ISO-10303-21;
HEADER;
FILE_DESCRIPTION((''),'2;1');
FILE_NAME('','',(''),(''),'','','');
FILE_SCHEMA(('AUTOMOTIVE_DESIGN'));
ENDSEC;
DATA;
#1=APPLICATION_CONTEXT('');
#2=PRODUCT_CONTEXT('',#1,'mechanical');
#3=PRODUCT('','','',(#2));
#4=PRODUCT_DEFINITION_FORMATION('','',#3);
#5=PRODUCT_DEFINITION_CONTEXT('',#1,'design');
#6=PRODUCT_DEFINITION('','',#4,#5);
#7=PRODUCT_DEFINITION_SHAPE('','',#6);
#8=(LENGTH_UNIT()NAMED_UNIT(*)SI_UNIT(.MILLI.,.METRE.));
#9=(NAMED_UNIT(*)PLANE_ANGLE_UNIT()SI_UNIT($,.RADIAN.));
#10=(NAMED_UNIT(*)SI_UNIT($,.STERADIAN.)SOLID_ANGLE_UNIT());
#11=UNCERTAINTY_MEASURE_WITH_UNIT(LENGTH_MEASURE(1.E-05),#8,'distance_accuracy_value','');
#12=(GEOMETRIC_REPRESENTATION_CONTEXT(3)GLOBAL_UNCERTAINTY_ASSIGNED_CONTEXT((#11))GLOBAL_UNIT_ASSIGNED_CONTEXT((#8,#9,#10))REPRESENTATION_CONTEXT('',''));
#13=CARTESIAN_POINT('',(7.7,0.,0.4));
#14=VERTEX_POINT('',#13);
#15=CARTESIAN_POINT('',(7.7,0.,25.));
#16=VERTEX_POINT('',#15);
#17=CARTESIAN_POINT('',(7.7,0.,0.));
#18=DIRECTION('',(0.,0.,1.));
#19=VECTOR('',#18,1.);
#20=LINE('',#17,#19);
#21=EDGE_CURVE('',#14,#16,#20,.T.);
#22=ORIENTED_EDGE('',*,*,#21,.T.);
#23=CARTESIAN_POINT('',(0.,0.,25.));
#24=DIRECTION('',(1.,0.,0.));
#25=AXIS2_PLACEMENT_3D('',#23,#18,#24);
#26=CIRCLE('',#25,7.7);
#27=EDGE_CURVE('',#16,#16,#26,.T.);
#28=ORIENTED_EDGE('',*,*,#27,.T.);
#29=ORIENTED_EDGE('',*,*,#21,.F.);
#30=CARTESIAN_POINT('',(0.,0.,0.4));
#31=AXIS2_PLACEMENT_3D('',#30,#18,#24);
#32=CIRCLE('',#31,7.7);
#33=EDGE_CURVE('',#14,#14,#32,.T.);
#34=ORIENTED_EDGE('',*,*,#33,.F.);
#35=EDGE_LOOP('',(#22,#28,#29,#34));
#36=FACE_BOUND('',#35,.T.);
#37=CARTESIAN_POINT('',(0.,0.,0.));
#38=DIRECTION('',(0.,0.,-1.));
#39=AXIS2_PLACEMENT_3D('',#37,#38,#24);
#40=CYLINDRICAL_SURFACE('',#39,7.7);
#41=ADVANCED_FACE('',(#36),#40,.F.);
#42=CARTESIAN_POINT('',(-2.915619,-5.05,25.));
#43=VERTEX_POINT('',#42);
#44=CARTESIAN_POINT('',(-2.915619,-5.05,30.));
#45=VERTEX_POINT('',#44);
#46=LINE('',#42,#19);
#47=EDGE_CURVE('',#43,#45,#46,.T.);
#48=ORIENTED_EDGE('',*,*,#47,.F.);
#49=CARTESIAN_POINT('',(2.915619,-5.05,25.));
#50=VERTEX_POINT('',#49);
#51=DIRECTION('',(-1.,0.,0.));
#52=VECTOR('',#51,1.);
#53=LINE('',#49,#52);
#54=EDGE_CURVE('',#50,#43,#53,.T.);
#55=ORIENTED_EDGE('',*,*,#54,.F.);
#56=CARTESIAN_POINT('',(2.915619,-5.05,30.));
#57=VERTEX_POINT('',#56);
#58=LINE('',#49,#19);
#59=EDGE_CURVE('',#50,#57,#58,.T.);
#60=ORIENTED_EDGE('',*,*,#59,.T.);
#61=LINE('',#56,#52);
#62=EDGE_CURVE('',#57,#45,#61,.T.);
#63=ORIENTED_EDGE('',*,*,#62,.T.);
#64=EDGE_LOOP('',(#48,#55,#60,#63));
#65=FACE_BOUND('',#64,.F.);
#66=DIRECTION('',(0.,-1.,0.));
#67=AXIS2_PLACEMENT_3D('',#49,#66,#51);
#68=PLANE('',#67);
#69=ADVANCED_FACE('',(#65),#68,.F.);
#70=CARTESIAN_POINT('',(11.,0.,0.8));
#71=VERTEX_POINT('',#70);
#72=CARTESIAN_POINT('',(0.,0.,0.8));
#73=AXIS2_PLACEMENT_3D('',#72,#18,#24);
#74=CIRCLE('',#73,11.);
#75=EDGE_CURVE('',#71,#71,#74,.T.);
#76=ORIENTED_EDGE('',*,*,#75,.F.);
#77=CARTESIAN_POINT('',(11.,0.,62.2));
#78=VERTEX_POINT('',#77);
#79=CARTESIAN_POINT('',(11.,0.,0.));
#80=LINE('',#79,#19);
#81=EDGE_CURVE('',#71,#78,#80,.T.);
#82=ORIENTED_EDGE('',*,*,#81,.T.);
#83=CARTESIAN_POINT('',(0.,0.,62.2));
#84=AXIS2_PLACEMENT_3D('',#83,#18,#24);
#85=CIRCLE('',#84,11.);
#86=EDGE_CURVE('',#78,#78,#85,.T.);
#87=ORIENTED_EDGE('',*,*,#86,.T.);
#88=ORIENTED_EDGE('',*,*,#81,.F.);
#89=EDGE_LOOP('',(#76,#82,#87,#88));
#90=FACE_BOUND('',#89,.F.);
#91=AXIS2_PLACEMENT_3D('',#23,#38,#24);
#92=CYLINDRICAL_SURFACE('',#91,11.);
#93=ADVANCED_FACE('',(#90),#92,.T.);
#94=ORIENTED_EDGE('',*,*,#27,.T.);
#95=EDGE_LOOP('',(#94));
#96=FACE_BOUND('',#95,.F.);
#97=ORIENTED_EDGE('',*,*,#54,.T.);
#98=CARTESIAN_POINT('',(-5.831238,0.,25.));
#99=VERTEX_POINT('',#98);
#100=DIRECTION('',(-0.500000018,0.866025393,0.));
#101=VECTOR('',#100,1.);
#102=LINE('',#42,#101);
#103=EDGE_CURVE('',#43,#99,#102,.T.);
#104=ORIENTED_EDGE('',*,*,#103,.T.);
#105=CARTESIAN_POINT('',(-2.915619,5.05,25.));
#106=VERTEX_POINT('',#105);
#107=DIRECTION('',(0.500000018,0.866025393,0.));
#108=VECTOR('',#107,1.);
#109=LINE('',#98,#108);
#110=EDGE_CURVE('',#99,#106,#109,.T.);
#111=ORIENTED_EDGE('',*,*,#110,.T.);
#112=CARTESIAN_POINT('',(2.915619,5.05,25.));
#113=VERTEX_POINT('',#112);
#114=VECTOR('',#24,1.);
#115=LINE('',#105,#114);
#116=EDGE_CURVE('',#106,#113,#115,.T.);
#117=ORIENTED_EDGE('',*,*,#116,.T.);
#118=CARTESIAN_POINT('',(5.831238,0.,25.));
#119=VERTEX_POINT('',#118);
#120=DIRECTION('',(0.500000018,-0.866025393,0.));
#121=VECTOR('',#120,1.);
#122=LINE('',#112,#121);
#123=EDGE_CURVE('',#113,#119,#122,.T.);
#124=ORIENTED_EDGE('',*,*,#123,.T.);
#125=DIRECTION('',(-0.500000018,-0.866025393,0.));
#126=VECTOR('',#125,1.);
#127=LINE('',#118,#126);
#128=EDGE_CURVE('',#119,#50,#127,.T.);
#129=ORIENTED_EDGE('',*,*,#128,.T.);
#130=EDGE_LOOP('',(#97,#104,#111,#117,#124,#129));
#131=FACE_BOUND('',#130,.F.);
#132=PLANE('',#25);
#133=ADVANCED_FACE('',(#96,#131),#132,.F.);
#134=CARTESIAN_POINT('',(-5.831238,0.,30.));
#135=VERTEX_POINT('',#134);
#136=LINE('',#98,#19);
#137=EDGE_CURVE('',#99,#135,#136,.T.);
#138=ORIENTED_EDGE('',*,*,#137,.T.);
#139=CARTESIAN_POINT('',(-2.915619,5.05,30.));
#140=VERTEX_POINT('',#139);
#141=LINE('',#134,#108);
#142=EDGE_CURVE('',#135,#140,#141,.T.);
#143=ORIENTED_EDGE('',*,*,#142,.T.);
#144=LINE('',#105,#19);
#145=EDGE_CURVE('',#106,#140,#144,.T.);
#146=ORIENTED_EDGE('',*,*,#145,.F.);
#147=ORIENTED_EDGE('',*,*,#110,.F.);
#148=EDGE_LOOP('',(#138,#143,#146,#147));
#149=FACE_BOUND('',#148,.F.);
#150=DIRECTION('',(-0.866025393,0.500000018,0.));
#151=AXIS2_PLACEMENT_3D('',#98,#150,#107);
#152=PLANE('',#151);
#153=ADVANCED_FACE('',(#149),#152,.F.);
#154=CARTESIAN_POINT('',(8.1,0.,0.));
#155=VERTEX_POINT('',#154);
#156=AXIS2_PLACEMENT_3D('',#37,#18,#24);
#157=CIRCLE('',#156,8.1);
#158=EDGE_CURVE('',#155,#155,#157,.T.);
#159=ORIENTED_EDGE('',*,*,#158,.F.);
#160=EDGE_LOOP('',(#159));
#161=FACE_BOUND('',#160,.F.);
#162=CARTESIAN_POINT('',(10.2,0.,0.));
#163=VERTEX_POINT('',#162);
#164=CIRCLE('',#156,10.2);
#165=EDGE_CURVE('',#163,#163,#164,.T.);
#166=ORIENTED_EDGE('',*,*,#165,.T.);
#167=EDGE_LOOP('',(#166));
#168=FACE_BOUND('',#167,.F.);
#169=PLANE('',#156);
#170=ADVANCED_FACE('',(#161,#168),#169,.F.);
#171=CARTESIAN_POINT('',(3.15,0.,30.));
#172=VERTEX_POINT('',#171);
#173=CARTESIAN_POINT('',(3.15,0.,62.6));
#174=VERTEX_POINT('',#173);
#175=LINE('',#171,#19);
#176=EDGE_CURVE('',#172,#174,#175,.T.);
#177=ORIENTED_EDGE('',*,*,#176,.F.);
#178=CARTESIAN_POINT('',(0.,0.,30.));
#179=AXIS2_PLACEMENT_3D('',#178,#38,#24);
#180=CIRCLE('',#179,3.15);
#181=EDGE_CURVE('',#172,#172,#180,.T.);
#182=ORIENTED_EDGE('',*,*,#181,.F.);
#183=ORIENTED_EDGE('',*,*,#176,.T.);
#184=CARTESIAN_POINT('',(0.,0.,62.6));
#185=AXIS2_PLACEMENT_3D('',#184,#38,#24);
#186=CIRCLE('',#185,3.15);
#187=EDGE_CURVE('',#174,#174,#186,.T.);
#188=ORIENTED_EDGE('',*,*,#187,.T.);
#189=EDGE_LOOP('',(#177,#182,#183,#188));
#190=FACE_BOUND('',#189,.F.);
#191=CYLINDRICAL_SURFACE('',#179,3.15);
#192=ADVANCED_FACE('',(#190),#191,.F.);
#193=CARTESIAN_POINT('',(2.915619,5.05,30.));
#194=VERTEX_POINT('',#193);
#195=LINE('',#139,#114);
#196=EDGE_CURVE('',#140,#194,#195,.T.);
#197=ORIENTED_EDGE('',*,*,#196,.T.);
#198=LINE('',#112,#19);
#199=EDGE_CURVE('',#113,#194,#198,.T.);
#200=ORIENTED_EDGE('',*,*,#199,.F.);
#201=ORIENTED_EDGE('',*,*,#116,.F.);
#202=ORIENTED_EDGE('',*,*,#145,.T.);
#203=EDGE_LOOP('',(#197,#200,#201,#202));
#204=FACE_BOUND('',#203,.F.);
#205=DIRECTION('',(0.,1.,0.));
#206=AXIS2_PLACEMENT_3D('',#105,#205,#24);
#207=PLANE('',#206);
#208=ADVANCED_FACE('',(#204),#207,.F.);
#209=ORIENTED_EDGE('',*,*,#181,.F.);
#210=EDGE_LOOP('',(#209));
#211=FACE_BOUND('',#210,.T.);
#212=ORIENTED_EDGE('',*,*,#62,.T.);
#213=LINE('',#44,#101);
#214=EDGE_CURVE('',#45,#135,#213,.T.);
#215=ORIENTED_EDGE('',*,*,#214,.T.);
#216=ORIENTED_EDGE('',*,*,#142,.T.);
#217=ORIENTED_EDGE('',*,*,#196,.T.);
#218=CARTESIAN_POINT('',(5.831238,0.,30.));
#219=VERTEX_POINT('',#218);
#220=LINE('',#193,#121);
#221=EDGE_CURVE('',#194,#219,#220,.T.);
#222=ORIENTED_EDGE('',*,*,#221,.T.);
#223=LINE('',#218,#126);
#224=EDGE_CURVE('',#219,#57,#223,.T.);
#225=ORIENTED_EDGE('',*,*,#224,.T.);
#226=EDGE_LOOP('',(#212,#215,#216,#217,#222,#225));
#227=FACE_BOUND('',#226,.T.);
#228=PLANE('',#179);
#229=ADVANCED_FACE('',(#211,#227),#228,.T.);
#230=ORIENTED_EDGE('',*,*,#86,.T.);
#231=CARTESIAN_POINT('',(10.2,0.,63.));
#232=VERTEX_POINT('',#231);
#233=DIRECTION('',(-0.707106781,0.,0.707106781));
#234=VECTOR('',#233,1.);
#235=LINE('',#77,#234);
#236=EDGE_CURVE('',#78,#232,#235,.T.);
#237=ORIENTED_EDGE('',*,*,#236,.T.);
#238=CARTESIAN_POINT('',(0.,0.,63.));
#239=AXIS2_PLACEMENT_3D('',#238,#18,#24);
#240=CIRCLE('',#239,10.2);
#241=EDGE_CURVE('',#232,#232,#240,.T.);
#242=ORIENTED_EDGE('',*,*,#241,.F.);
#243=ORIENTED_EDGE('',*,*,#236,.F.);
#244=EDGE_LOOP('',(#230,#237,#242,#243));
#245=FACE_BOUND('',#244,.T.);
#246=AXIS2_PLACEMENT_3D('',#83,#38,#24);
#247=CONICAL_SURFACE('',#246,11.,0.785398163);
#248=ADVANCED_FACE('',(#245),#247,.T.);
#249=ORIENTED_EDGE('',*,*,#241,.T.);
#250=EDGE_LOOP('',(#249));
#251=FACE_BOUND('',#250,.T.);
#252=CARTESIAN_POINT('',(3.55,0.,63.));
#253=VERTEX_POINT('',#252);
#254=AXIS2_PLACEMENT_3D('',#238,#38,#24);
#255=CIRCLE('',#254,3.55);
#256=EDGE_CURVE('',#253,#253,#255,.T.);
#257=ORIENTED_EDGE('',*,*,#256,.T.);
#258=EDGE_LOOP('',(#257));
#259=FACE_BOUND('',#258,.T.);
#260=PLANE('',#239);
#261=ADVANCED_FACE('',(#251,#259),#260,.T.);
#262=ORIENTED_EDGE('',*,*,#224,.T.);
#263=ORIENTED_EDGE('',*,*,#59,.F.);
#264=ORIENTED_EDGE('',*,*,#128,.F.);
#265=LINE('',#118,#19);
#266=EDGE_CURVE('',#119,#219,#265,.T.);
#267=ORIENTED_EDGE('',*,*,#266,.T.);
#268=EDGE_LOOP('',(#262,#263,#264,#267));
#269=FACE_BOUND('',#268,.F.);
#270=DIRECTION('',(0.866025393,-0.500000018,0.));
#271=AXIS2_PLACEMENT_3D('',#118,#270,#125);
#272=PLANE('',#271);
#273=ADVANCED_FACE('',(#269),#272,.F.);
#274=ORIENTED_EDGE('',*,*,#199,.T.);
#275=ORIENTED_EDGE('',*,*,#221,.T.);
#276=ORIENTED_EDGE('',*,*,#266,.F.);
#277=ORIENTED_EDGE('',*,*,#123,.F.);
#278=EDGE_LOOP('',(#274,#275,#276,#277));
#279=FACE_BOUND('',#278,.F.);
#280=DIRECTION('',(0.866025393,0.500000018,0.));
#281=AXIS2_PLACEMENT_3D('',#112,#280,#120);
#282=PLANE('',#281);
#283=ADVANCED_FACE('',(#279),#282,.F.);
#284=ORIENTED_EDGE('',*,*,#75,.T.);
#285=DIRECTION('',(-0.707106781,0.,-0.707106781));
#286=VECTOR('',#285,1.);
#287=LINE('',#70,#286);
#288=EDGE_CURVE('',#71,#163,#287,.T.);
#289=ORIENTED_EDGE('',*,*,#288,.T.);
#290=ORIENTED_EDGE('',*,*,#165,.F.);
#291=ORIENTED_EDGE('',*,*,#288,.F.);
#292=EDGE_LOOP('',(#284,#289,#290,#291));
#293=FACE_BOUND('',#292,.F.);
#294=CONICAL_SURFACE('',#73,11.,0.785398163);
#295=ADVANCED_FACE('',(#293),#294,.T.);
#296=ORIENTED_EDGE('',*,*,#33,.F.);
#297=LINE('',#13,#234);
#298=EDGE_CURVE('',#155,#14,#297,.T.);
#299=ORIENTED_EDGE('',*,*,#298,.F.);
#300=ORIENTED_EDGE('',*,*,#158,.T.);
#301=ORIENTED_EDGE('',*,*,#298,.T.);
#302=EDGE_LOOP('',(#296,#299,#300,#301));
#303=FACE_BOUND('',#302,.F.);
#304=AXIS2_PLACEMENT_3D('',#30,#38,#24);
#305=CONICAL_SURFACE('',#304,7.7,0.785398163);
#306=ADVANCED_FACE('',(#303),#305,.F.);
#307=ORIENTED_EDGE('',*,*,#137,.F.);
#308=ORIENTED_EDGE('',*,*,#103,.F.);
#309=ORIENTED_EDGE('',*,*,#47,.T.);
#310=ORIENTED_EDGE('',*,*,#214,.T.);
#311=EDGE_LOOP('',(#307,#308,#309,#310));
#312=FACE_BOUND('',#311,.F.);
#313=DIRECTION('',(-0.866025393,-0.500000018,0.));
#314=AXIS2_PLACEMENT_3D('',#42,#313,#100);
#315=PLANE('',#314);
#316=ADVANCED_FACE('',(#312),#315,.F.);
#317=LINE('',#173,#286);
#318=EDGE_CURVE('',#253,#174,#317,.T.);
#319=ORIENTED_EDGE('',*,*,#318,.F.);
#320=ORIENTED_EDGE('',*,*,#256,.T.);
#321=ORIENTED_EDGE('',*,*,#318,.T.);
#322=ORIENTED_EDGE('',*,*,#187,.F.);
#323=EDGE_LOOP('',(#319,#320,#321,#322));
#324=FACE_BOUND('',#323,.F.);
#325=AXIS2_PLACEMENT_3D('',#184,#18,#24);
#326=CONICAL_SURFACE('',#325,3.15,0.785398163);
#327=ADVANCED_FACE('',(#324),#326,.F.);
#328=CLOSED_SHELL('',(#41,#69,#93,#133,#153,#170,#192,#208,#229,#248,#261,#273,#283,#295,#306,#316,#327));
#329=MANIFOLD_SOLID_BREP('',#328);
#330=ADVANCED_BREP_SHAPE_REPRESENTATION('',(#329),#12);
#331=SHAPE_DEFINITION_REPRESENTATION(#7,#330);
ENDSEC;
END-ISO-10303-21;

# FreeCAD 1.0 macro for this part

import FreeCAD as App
import Part
import Sketcher
Q = App.Units.Quantity


def edges_at(feature, points):
    """Names of the edges that pass closest to the given points."""
    edges = feature.Shape.Edges
    near = lambda p: min(range(len(edges)), key=lambda i: edges[i].distToShape(Part.Vertex(*p))[0])
    return sorted({f"Edge{near(p) + 1}" for p in points})

doc = App.newDocument("Part")
body = doc.addObject("PartDesign::Body", "Body")

# Sketch on XY plane
sketch1 = doc.addObject("Sketcher::SketchObject", "Sketch")
body.addObject(sketch1)
sketch1.AttachmentSupport = (doc.XY_Plane, [""])
sketch1.MapMode = "FlatFace"
sketch1.addGeometry(Part.Circle(App.Vector(0, 0, 0), App.Vector(0, 0, 1), 11), False)
sketch1.addGeometry(Part.Circle(App.Vector(0, 0, 0), App.Vector(0, 0, 1), 7.7), False)
sketch1.addConstraint(Sketcher.Constraint("Coincident", 0, 3, -1, 1))
sketch1.addConstraint(Sketcher.Constraint("Coincident", 1, 3, -1, 1))
sketch1.addConstraint(Sketcher.Constraint("Diameter", 0, Q("22 mm")))
sketch1.addConstraint(Sketcher.Constraint("Diameter", 1, Q("15.4 mm")))
pad1 = doc.addObject("PartDesign::Pad", "Pad")
body.addObject(pad1)
pad1.Profile = sketch1
pad1.Length = 25

# Sketch on XY plane
sketch2 = doc.addObject("Sketcher::SketchObject", "Sketch001")
body.addObject(sketch2)
sketch2.AttachmentSupport = (doc.XY_Plane, [""])
sketch2.MapMode = "FlatFace"
sketch2.AttachmentOffset = App.Placement(App.Vector(0, 0, 25), App.Rotation())
sketch2.addGeometry(Part.Circle(App.Vector(0, 0, 0), App.Vector(0, 0, 1), 11), False)
sketch2.addConstraint(Sketcher.Constraint("Coincident", 0, 3, -1, 1))
sketch2.addConstraint(Sketcher.Constraint("Diameter", 0, Q("22 mm")))
pad2 = doc.addObject("PartDesign::Pad", "Pad001")
body.addObject(pad2)
pad2.Profile = sketch2
pad2.Length = 38

# Sketch on XY plane
sketch3 = doc.addObject("Sketcher::SketchObject", "Sketch002")
body.addObject(sketch3)
sketch3.AttachmentSupport = (doc.XY_Plane, [""])
sketch3.MapMode = "FlatFace"
sketch3.AttachmentOffset = App.Placement(App.Vector(0, 0, 25), App.Rotation())
sketch3.addGeometry(Part.LineSegment(App.Vector(-2.915619, 5.05, 0), App.Vector(2.915619, 5.05, 0)), False)
sketch3.addGeometry(Part.LineSegment(App.Vector(2.915619, 5.05, 0), App.Vector(5.831238, 0, 0)), False)
sketch3.addGeometry(Part.LineSegment(App.Vector(5.831238, 0, 0), App.Vector(2.915619, -5.05, 0)), False)
sketch3.addGeometry(Part.LineSegment(App.Vector(2.915619, -5.05, 0), App.Vector(-2.915619, -5.05, 0)), False)
sketch3.addGeometry(Part.LineSegment(App.Vector(-2.915619, -5.05, 0), App.Vector(-5.831238, 0, 0)), False)
sketch3.addGeometry(Part.LineSegment(App.Vector(-5.831238, 0, 0), App.Vector(-2.915619, 5.05, 0)), False)
sketch3.addConstraint(Sketcher.Constraint("Coincident", 0, 2, 1, 1))
sketch3.addConstraint(Sketcher.Constraint("Coincident", 1, 2, 2, 1))
sketch3.addConstraint(Sketcher.Constraint("Coincident", 2, 2, 3, 1))
sketch3.addConstraint(Sketcher.Constraint("Coincident", 3, 2, 4, 1))
sketch3.addConstraint(Sketcher.Constraint("Coincident", 4, 2, 5, 1))
sketch3.addConstraint(Sketcher.Constraint("Coincident", 5, 2, 0, 1))
sketch3.addConstraint(Sketcher.Constraint("Horizontal", 0))
sketch3.addConstraint(Sketcher.Constraint("Horizontal", 3))
sketch3.addConstraint(Sketcher.Constraint("Symmetric", 0, 2, 3, 2, -1, 1))
sketch3.addConstraint(Sketcher.Constraint("Symmetric", 1, 2, 4, 2, -1, 1))
sketch3.addConstraint(Sketcher.Constraint("PointOnObject", 1, 2, -1))
sketch3.addConstraint(Sketcher.Constraint("Parallel", 2, 5))
sketch3.addConstraint(Sketcher.Constraint("Vertical", 0, 2, 2, 2))
sketch3.addConstraint(Sketcher.Constraint("Angle", 1, Q("-59.999999 deg")))
sketch3.addConstraint(Sketcher.Constraint("DistanceY", 2, 2, 0, 2, Q("10.1 mm")))
sketch3.addConstraint(Sketcher.Constraint("DistanceX", 0, 1, 0, 2, Q("5.831238 mm")))
pocket1 = doc.addObject("PartDesign::Pocket", "Pocket")
body.addObject(pocket1)
pocket1.Profile = sketch3
pocket1.Length = 5
pocket1.Reversed = True

# Sketch on XY plane
sketch4 = doc.addObject("Sketcher::SketchObject", "Sketch003")
body.addObject(sketch4)
sketch4.AttachmentSupport = (doc.XY_Plane, [""])
sketch4.MapMode = "FlatFace"
sketch4.AttachmentOffset = App.Placement(App.Vector(0, 0, 30), App.Rotation())
sketch4.addGeometry(Part.Circle(App.Vector(0, 0, 0), App.Vector(0, 0, 1), 3.15), False)
sketch4.addConstraint(Sketcher.Constraint("Coincident", 0, 3, -1, 1))
sketch4.addConstraint(Sketcher.Constraint("Diameter", 0, Q("6.3 mm")))
pocket2 = doc.addObject("PartDesign::Pocket", "Pocket001")
body.addObject(pocket2)
pocket2.Profile = sketch4
pocket2.Length = 50
pocket2.Reversed = True
doc.recompute()

chamfer = doc.addObject("PartDesign::Chamfer", "Chamfer")
body.addObject(chamfer)
chamfer.Base = (pocket2, edges_at(pocket2, [(-11, 0, 0), (-11, 0, 63)]))
chamfer.Size = 0.8
doc.recompute()

chamfer2 = doc.addObject("PartDesign::Chamfer", "Chamfer001")
body.addObject(chamfer2)
chamfer2.Base = (chamfer, edges_at(chamfer, [(-3.15, 0, 63)]))
chamfer2.Size = 0.4
doc.recompute()

chamfer3 = doc.addObject("PartDesign::Chamfer", "Chamfer002")
body.addObject(chamfer3)
chamfer3.Base = (chamfer2, edges_at(chamfer2, [(-7.7, 0, 0)]))
chamfer3.Size = 0.4

doc.recompute()
